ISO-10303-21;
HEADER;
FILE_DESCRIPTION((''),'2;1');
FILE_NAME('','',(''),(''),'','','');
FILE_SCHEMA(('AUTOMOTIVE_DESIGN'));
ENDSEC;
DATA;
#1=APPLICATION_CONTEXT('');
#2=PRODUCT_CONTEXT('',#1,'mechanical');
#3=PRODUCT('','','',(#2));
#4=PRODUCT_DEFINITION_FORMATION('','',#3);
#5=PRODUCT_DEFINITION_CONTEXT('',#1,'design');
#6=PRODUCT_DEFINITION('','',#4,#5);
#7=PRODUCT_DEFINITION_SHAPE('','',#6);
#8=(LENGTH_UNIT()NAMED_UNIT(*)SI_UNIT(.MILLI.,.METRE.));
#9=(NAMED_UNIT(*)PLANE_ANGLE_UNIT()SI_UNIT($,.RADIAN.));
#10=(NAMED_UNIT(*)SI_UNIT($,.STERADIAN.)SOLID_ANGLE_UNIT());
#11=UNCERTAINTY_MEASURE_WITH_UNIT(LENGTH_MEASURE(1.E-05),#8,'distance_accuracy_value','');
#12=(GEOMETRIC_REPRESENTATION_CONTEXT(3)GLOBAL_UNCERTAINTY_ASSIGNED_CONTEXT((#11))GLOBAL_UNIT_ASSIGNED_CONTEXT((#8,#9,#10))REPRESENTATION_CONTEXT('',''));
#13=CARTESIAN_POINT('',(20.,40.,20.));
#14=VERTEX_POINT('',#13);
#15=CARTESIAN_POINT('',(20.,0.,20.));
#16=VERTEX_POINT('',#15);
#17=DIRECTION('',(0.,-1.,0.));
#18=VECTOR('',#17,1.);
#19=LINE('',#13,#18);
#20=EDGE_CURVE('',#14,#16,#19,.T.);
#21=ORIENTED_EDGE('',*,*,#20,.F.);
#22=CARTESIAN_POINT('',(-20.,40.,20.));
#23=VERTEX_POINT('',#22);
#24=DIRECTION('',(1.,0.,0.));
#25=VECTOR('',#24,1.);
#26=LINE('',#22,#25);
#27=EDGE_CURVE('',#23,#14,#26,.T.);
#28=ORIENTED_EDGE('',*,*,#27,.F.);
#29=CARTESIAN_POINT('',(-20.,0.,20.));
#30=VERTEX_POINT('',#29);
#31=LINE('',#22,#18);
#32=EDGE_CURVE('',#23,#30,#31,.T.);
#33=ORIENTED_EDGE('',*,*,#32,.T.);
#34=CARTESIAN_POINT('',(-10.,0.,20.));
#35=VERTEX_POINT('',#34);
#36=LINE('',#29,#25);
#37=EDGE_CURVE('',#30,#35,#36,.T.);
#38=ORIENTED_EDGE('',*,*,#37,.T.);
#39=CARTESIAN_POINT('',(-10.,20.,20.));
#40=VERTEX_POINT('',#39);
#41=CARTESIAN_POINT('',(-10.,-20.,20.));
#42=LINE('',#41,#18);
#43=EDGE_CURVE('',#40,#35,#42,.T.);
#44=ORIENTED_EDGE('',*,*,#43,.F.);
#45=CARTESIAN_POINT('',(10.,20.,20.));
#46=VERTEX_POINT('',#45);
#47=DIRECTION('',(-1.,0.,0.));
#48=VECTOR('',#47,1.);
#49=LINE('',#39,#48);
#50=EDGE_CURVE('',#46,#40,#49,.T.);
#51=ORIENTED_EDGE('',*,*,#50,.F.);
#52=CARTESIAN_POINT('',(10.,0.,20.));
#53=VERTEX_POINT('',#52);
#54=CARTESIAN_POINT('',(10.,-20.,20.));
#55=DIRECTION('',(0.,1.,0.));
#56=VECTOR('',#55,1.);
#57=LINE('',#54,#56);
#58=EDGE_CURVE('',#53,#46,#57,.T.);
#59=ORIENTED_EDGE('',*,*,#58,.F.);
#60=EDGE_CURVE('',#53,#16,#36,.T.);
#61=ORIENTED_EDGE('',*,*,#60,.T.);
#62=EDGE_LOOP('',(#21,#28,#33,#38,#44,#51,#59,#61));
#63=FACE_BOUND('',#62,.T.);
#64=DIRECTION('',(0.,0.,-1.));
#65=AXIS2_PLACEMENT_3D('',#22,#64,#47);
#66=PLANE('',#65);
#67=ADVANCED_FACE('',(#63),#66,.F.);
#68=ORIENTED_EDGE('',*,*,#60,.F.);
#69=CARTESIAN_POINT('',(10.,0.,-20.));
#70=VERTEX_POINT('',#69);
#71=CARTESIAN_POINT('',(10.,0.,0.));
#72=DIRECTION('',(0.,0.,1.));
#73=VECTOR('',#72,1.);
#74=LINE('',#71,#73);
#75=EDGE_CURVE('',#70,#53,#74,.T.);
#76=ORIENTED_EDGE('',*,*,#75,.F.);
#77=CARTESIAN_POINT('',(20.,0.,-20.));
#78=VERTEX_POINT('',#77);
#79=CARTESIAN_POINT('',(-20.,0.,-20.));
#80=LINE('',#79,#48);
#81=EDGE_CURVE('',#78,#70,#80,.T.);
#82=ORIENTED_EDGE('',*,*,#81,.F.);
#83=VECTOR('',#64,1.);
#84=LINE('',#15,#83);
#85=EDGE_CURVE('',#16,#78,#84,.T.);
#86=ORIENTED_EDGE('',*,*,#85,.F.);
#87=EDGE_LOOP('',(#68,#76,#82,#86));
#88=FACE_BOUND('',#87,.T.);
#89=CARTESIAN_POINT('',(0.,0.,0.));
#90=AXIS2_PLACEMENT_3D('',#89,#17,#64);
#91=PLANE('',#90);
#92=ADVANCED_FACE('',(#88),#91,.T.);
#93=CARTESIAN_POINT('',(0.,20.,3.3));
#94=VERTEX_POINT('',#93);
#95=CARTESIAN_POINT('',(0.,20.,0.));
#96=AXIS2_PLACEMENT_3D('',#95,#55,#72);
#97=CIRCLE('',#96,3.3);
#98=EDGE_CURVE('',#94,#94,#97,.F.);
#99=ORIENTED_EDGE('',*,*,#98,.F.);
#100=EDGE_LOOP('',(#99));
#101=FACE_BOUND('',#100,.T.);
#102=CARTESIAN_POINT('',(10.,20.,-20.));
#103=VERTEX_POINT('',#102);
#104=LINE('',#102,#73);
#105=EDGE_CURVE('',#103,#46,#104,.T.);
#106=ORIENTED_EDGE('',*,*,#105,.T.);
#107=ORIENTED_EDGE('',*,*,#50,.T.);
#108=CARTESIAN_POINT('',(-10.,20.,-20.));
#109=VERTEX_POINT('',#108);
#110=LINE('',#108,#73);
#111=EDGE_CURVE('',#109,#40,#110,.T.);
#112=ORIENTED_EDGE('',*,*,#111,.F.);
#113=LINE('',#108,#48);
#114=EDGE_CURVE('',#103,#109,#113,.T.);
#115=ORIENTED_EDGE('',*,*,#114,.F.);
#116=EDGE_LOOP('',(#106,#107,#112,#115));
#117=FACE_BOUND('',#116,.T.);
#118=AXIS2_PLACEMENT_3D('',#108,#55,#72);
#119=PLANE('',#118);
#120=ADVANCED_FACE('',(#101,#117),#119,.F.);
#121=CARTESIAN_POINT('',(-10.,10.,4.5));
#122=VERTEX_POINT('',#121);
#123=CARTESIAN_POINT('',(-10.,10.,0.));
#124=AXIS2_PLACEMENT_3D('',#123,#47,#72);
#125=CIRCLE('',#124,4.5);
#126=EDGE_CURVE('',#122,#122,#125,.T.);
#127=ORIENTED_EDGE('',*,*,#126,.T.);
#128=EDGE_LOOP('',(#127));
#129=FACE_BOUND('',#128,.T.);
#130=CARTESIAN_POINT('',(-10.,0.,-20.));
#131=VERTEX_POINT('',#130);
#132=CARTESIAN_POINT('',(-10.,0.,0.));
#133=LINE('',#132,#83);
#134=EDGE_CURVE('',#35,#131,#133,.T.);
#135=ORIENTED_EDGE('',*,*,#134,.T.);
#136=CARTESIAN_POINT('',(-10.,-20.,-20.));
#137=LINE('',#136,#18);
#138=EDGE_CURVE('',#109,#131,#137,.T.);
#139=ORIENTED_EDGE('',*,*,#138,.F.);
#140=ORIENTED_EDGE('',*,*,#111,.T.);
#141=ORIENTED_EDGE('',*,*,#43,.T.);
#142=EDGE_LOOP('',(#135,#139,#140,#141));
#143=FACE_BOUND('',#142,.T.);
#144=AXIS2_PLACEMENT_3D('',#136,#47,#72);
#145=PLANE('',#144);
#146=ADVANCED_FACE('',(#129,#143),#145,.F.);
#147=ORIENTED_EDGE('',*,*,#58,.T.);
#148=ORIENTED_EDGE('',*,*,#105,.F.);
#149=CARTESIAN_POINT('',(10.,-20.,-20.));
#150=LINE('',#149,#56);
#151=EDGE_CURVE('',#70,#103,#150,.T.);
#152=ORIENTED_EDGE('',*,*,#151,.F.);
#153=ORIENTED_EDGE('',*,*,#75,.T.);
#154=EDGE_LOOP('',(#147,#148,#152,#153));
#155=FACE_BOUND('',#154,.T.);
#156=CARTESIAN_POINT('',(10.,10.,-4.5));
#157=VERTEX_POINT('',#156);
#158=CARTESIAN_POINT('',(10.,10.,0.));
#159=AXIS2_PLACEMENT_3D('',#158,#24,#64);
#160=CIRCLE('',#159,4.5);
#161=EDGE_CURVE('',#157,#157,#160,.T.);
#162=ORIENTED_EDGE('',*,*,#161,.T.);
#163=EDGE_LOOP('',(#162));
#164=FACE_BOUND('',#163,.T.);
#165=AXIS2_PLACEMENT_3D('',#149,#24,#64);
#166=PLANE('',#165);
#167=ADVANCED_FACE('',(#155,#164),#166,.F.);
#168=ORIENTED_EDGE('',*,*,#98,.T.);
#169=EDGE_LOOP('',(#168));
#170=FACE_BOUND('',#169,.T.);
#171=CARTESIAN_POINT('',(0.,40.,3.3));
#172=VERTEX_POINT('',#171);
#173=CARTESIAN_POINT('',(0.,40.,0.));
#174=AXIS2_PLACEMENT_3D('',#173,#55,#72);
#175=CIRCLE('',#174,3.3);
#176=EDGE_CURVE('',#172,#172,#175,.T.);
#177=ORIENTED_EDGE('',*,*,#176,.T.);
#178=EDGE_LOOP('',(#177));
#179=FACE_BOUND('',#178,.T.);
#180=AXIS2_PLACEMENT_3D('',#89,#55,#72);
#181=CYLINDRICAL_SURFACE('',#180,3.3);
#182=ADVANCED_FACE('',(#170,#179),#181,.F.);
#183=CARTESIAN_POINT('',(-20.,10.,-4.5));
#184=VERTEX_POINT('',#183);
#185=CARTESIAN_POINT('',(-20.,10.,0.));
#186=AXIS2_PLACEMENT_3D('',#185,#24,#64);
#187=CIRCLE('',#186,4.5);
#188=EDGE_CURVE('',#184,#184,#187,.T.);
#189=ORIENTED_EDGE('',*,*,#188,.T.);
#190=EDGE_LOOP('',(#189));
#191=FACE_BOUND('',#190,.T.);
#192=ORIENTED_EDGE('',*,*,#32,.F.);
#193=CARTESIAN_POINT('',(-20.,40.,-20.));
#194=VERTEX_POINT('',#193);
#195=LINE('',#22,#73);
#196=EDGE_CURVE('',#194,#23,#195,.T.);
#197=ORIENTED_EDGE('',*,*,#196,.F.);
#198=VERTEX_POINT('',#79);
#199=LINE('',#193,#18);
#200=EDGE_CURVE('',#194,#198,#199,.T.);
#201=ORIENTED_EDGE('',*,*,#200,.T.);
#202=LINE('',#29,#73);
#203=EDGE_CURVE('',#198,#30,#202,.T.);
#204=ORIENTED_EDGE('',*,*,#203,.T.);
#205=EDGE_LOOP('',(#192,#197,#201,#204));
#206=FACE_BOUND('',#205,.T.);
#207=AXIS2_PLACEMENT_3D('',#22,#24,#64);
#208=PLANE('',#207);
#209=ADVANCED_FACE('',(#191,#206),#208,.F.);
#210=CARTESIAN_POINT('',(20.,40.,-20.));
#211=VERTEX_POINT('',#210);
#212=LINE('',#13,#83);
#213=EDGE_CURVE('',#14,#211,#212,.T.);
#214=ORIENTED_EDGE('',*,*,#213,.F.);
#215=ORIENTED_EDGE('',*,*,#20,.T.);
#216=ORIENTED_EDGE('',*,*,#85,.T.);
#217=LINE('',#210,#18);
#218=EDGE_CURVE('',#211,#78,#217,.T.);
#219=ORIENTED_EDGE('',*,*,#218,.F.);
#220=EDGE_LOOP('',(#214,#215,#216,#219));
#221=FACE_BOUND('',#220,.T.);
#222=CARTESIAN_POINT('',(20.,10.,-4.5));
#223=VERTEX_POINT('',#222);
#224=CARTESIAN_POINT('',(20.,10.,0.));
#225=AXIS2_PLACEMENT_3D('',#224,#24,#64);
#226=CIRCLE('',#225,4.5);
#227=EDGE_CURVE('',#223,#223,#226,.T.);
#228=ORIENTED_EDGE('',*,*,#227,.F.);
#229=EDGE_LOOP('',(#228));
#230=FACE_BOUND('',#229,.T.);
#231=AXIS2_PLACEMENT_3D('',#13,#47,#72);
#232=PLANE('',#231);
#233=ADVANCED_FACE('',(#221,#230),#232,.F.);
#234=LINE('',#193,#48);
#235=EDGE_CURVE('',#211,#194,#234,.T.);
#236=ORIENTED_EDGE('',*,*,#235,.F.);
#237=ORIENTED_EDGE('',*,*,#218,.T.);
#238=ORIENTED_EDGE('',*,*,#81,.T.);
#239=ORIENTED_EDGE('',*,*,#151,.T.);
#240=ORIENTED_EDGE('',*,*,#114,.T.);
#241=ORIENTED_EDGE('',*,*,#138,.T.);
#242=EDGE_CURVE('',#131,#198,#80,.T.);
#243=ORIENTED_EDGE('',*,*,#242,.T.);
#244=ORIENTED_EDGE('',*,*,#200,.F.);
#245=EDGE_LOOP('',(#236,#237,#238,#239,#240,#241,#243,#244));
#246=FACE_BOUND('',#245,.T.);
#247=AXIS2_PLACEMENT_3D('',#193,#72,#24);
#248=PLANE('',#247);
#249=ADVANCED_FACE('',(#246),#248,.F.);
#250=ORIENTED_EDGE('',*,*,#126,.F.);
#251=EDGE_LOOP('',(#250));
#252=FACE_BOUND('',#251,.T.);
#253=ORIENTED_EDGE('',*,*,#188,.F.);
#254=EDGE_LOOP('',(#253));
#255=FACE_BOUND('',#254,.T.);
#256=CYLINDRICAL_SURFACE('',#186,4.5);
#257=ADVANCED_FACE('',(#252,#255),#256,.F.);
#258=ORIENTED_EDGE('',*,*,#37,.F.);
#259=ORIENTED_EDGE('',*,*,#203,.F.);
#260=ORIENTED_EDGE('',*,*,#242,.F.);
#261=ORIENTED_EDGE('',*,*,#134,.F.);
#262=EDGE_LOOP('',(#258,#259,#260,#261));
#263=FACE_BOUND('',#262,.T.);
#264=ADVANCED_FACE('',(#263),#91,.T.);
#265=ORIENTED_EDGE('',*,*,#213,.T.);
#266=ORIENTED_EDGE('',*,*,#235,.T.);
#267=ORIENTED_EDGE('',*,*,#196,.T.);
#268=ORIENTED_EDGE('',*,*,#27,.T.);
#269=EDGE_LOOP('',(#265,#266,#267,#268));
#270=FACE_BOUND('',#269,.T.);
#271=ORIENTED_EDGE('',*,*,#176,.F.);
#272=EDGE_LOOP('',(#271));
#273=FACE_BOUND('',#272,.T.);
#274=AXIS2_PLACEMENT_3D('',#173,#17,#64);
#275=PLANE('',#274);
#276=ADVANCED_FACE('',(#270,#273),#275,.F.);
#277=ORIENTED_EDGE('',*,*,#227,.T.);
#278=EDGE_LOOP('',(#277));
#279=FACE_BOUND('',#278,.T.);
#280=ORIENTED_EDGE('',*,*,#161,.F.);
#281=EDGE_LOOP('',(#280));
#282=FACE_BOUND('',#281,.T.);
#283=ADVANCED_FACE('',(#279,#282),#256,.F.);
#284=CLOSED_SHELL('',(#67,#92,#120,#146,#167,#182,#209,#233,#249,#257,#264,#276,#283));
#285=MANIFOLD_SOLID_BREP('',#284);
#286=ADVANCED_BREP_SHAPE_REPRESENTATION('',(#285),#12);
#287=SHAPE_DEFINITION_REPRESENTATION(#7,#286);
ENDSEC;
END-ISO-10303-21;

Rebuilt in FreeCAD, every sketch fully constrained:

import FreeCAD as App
import Part
import Sketcher
from FreeCAD import Vector
Q = App.Units.Quantity


def add_polygon(sketch, points):
    """Adds a closed chain of lines whose ends are joined by coincident constraints."""
    first, n = sketch.GeometryCount, len(points)
    for a, b in zip(points, points[1:] + points[:1]):
        sketch.addGeometry(Part.LineSegment(App.Vector(*a, 0), App.Vector(*b, 0)), False)
    for i in range(n):
        sketch.addConstraint(Sketcher.Constraint("Coincident", first + i, 2, first + (i + 1) % n, 1))

doc = App.newDocument("Part")
body = doc.addObject("PartDesign::Body", "Body")

# Sketch on XZ plane
sketch1 = body.newObject("Sketcher::SketchObject", "Sketch")
sketch1.AttachmentSupport = (doc.getObject("XZ_Plane"), [""])
sketch1.MapMode = "FlatFace"
add_polygon(sketch1, [(-20, -20), (-20, 20), (20, 20), (20, -20)])  # lines 0-3
sketch1.addConstraint([
    Sketcher.Constraint("Vertical", 0),
    Sketcher.Constraint("Horizontal", 1),
    Sketcher.Constraint("Vertical", 2),
    Sketcher.Constraint("Horizontal", 3),
    Sketcher.Constraint("Symmetric", 0, 2, 2, 2, -1, 1),
    Sketcher.Constraint("Equal", 3, 0),
    Sketcher.Constraint("DistanceX", 1, 1, 1, 2, Q("40 mm")),
])
pad1 = body.newObject("PartDesign::Pad", "Pad")
pad1.Profile = sketch1
pad1.Length = 40
pad1.Reversed = True

# Sketch on XZ plane
sketch2 = body.newObject("Sketcher::SketchObject", "Sketch001")
sketch2.AttachmentSupport = (doc.getObject("XZ_Plane"), [""])
sketch2.MapMode = "FlatFace"
sketch2.AttachmentOffset = App.Placement(Vector(0, 0, -40), App.Rotation())
sketch2.addGeometry(Part.Circle(Vector(0, 0, 0), Vector(0, 0, 1), 3.3), False)
sketch2.addConstraint([
    Sketcher.Constraint("Coincident", 0, 3, -1, 1),
    Sketcher.Constraint("Diameter", 0, Q("6.6 mm")),
])
pocket1 = body.newObject("PartDesign::Pocket", "Pocket")
pocket1.Profile = sketch2
pocket1.Length = 40
pocket1.Reversed = True

# Sketch on XY plane
sketch3 = body.newObject("Sketcher::SketchObject", "Sketch002")
sketch3.AttachmentSupport = (doc.getObject("XY_Plane"), [""])
sketch3.MapMode = "FlatFace"
sketch3.AttachmentOffset = App.Placement(Vector(0, 0, 20), App.Rotation())
add_polygon(sketch3, [(-10, 20), (-10, -20), (10, -20), (10, 20)])  # lines 0-3
sketch3.addConstraint([
    Sketcher.Constraint("Vertical", 0),
    Sketcher.Constraint("Horizontal", 1),
    Sketcher.Constraint("Vertical", 2),
    Sketcher.Constraint("Horizontal", 3),
    Sketcher.Constraint("Symmetric", 0, 2, 2, 2, -1, 1),
    Sketcher.Constraint("DistanceX", 1, 1, 1, 2, Q("20 mm")),
    Sketcher.Constraint("DistanceY", 0, 2, 0, 1, Q("40 mm")),
])
pocket2 = body.newObject("PartDesign::Pocket", "Pocket001")
pocket2.Profile = sketch3
pocket2.Length = 40

# Sketch on YZ plane
sketch4 = body.newObject("Sketcher::SketchObject", "Sketch003")
sketch4.AttachmentSupport = (doc.getObject("YZ_Plane"), [""])
sketch4.MapMode = "FlatFace"
sketch4.AttachmentOffset = App.Placement(Vector(0, 0, 20), App.Rotation())
sketch4.addGeometry(Part.Circle(Vector(10, 0, 0), Vector(0, 0, 1), 4.5), False)
sketch4.addConstraint([
    Sketcher.Constraint("PointOnObject", 0, 3, -1),
    Sketcher.Constraint("Diameter", 0, Q("9 mm")),
    Sketcher.Constraint("DistanceX", -1, 1, 0, 3, Q("10 mm")),
])
pocket3 = body.newObject("PartDesign::Pocket", "Pocket002")
pocket3.Profile = sketch4
pocket3.Length = 40

doc.recompute()
